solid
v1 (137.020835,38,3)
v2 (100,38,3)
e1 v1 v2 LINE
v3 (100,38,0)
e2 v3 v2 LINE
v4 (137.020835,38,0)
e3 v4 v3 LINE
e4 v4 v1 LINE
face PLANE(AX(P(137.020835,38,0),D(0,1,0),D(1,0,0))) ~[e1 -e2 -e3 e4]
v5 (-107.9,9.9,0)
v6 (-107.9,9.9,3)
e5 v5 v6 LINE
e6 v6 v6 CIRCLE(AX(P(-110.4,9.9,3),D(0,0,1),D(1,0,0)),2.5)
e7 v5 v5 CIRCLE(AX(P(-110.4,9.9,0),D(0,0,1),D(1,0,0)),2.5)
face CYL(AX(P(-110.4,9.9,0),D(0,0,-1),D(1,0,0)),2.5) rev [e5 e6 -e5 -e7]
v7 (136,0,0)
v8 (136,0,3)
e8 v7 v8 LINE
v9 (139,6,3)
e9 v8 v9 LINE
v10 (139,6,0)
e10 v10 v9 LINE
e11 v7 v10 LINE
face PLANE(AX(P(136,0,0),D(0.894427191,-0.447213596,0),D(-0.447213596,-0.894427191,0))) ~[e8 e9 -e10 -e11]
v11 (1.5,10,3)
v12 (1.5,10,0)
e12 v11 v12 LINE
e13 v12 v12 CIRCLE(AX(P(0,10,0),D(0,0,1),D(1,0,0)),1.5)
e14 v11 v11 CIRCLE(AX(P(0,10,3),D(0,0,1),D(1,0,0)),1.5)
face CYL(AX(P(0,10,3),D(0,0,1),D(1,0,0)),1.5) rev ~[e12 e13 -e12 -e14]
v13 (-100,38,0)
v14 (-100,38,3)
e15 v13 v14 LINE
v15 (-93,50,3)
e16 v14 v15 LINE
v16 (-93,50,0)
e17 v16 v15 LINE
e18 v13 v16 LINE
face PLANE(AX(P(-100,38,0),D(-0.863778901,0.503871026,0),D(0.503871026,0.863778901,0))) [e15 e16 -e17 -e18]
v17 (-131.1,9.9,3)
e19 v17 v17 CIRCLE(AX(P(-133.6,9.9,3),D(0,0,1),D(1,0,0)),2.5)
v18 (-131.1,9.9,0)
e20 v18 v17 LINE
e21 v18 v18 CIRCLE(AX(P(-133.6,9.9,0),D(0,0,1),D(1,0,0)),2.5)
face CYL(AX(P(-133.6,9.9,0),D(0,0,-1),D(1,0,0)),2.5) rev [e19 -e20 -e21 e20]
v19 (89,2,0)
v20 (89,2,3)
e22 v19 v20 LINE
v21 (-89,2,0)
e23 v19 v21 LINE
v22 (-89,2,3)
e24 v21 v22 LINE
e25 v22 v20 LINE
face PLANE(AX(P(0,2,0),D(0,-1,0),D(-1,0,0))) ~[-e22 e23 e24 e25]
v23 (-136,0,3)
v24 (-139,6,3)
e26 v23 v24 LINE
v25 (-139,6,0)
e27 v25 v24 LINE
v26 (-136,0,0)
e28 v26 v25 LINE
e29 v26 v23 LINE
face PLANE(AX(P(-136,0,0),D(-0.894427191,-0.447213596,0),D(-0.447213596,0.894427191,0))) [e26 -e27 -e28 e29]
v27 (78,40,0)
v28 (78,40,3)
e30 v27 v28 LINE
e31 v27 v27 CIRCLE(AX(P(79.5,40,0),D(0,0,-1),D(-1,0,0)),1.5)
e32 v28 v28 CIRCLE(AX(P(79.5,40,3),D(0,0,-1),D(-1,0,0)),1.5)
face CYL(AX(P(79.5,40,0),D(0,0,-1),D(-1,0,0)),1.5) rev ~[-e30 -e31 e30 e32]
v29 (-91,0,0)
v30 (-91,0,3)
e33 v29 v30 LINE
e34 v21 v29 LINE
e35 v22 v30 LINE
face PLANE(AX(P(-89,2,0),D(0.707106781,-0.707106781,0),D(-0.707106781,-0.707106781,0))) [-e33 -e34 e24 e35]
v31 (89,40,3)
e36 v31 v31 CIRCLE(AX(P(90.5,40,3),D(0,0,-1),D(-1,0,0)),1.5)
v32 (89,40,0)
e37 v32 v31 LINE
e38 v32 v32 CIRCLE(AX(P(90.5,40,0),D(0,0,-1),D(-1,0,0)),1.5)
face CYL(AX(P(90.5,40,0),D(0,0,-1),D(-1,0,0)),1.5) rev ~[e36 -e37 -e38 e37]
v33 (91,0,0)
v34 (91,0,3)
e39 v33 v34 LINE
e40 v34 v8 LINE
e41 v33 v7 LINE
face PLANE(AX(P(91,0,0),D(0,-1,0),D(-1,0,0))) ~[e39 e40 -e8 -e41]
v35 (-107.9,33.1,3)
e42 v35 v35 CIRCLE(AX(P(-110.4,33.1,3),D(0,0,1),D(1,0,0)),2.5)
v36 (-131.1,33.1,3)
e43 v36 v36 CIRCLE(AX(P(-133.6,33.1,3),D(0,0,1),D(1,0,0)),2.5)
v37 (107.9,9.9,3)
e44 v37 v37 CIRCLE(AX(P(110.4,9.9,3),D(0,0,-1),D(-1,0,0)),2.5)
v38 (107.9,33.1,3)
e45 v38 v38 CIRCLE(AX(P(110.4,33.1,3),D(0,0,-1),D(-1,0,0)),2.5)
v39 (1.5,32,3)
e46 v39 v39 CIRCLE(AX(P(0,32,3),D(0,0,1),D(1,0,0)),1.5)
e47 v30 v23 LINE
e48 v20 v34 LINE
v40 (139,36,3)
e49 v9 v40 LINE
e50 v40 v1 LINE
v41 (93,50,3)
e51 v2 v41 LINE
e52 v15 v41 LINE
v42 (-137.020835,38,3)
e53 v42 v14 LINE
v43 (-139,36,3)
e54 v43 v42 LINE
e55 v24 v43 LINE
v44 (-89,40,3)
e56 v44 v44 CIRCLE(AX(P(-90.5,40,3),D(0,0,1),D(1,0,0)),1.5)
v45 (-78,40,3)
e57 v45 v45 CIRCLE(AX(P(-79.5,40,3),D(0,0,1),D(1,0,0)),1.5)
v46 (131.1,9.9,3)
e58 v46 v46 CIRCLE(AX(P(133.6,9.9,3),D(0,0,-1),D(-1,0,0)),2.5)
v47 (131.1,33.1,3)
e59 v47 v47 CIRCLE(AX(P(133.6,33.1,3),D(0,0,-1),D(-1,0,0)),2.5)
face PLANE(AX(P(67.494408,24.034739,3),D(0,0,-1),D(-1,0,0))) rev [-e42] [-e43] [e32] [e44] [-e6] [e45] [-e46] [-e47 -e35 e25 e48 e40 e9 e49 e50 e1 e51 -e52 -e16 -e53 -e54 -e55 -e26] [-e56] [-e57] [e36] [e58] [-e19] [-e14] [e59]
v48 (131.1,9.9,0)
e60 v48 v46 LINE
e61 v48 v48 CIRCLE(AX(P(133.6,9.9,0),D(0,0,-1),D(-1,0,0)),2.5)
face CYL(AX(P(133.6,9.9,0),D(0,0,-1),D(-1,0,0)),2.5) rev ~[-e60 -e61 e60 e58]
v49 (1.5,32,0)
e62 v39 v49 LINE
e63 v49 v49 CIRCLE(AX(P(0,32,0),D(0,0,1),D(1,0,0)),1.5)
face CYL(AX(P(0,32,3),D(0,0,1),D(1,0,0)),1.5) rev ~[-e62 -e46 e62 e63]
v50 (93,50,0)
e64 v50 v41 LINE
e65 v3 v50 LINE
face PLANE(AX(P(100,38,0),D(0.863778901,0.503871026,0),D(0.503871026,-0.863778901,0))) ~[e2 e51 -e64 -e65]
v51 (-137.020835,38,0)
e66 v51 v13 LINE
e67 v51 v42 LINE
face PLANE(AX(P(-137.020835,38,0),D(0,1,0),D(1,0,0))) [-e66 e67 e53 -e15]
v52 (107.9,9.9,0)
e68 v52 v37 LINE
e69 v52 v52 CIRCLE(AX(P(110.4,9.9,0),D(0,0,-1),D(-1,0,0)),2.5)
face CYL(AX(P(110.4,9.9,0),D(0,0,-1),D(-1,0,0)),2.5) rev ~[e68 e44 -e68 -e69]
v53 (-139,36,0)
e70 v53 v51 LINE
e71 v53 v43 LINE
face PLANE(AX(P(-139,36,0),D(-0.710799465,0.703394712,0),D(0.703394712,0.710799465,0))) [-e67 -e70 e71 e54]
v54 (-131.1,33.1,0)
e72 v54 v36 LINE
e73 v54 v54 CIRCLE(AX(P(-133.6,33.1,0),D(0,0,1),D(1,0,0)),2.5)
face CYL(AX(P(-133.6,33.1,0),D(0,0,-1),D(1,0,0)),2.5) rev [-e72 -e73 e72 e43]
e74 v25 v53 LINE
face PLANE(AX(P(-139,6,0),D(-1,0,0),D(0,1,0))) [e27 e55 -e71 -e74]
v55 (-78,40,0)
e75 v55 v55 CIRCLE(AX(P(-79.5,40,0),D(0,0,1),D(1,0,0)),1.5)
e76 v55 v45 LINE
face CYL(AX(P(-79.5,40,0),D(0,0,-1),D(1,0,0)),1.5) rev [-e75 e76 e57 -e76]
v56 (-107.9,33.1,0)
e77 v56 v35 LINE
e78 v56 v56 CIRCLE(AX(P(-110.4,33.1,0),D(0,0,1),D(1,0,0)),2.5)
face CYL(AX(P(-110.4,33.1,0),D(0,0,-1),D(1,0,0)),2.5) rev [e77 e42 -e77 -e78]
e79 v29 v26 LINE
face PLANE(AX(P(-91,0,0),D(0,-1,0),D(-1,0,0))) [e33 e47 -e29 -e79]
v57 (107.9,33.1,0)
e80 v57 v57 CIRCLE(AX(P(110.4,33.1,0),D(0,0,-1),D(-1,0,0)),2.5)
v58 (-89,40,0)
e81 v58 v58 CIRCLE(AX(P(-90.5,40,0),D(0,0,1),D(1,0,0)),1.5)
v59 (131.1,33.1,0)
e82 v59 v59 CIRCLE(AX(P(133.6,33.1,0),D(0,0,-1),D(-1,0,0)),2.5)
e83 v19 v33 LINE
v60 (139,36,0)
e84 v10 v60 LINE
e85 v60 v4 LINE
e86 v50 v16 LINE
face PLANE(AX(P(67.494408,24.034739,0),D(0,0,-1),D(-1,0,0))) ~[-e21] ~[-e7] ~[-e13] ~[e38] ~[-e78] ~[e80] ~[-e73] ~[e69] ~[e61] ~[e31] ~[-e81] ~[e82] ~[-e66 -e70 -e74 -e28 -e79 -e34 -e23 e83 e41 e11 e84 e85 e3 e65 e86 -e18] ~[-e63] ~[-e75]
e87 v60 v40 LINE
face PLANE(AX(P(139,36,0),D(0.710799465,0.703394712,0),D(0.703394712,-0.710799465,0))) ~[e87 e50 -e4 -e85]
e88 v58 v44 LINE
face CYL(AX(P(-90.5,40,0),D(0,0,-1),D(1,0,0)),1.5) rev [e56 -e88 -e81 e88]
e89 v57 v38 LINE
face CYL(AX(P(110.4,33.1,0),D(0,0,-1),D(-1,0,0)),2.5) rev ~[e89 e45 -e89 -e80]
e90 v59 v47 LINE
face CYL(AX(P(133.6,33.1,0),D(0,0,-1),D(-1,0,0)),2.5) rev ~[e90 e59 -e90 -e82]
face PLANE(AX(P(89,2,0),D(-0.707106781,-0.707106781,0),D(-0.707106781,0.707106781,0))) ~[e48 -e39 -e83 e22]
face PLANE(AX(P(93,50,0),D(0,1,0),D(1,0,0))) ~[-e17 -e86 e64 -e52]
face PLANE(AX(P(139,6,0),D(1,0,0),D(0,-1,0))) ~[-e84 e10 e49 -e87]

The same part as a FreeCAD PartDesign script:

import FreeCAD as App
import Part
import Sketcher
Q = App.Units.Quantity

doc = App.newDocument("Part")
body = doc.addObject("PartDesign::Body", "Body")

# Sketch on XY plane
sketch1 = body.newObject("Sketcher::SketchObject", "Sketch")
sketch1.AttachmentSupport = (doc.getObject("XY_Plane"), [""])
sketch1.MapMode = "FlatFace"
sketch1.addGeometry(Part.LineSegment(App.Vector(0, 2, 0), App.Vector(0, 50, 0)), False)
sketch1.addGeometry(Part.LineSegment(App.Vector(0, 50, 0), App.Vector(-93, 50, 0)), False)
sketch1.addGeometry(Part.LineSegment(App.Vector(-93, 50, 0), App.Vector(-100, 38, 0)), False)
sketch1.addGeometry(Part.LineSegment(App.Vector(-100, 38, 0), App.Vector(-137.020835, 38, 0)), False)
sketch1.addGeometry(Part.LineSegment(App.Vector(-137.020835, 38, 0), App.Vector(-139, 36, 0)), False)
sketch1.addGeometry(Part.LineSegment(App.Vector(-139, 36, 0), App.Vector(-139, 6, 0)), False)
sketch1.addGeometry(Part.LineSegment(App.Vector(-139, 6, 0), App.Vector(-136, 0, 0)), False)
sketch1.addGeometry(Part.LineSegment(App.Vector(-136, 0, 0), App.Vector(-91, 0, 0)), False)
sketch1.addGeometry(Part.LineSegment(App.Vector(-91, 0, 0), App.Vector(-89, 2, 0)), False)
sketch1.addGeometry(Part.LineSegment(App.Vector(-89, 2, 0), App.Vector(0, 2, 0)), False)
sketch1.addGeometry(Part.Circle(App.Vector(-110.4, 9.9, 0), App.Vector(0, 0, 1), 2.5), False)
sketch1.addGeometry(Part.Circle(App.Vector(-133.6, 9.9, 0), App.Vector(0, 0, 1), 2.5), False)
sketch1.addGeometry(Part.Circle(App.Vector(-79.5, 40, 0), App.Vector(0, 0, 1), 1.5), False)
sketch1.addGeometry(Part.Circle(App.Vector(-90.5, 40, 0), App.Vector(0, 0, 1), 1.5), False)
sketch1.addGeometry(Part.Circle(App.Vector(-110.4, 33.1, 0), App.Vector(0, 0, 1), 2.5), False)
sketch1.addGeometry(Part.Circle(App.Vector(-133.6, 33.1, 0), App.Vector(0, 0, 1), 2.5), False)
sketch1.addConstraint(Sketcher.Constraint("Coincident", 0, 2, 1, 1))
sketch1.addConstraint(Sketcher.Constraint("Coincident", 1, 2, 2, 1))
sketch1.addConstraint(Sketcher.Constraint("Coincident", 2, 2, 3, 1))
sketch1.addConstraint(Sketcher.Constraint("Coincident", 3, 2, 4, 1))
sketch1.addConstraint(Sketcher.Constraint("Coincident", 4, 2, 5, 1))
sketch1.addConstraint(Sketcher.Constraint("Coincident", 5, 2, 6, 1))
sketch1.addConstraint(Sketcher.Constraint("Coincident", 6, 2, 7, 1))
sketch1.addConstraint(Sketcher.Constraint("Coincident", 7, 2, 8, 1))
sketch1.addConstraint(Sketcher.Constraint("Coincident", 8, 2, 9, 1))
sketch1.addConstraint(Sketcher.Constraint("Coincident", 9, 2, 0, 1))
sketch1.addConstraint(Sketcher.Constraint("Vertical", 0))
sketch1.addConstraint(Sketcher.Constraint("Horizontal", 1))
sketch1.addConstraint(Sketcher.Constraint("Horizontal", 3))
sketch1.addConstraint(Sketcher.Constraint("Vertical", 5))
sketch1.addConstraint(Sketcher.Constraint("Horizontal", 7))
sketch1.addConstraint(Sketcher.Constraint("Horizontal", 9))
sketch1.addConstraint(Sketcher.Constraint("Equal", 10, 11))
sketch1.addConstraint(Sketcher.Constraint("Equal", 12, 13))
sketch1.addConstraint(Sketcher.Constraint("Equal", 11, 14))
sketch1.addConstraint(Sketcher.Constraint("Equal", 14, 15))
sketch1.addConstraint(Sketcher.Constraint("PointOnObject", 0, 2, -2))
sketch1.addConstraint(Sketcher.Constraint("PointOnObject", 6, 2, -1))
sketch1.addConstraint(Sketcher.Constraint("Horizontal", 10, 3, 11, 3))
sketch1.addConstraint(Sketcher.Constraint("Horizontal", 12, 3, 13, 3))
sketch1.addConstraint(Sketcher.Constraint("Horizontal", 14, 3, 15, 3))
sketch1.addConstraint(Sketcher.Constraint("Vertical", 10, 3, 14, 3))
sketch1.addConstraint(Sketcher.Constraint("Vertical", 11, 3, 15, 3))
sketch1.addConstraint(Sketcher.Constraint("Diameter", 10, 5.0))
sketch1.addConstraint(Sketcher.Constraint("Diameter", 12, 3.0))
sketch1.addConstraint(Sketcher.Constraint("DistanceX", 1, 2, 1, 1, 93.0))
sketch1.addConstraint(Sketcher.Constraint("DistanceX", 7, 1, 7, 2, 45.0))
sketch1.addConstraint(Sketcher.Constraint("DistanceX", 9, 1, 9, 2, 89.0))
sketch1.addConstraint(Sketcher.Constraint("DistanceY", 0, 1, 0, 2, 48.0))
sketch1.addConstraint(Sketcher.Constraint("DistanceY", 5, 2, 5, 1, 30.0))
sketch1.addConstraint(Sketcher.Constraint("Angle", 8, Q("45 deg")))
sketch1.addConstraint(Sketcher.Constraint("DistanceY", -1, 1, 12, 3, 40.0))
sketch1.addConstraint(Sketcher.Constraint("DistanceY", -1, 1, 0, 2, 50.0))
sketch1.addConstraint(Sketcher.Constraint("DistanceX", 2, 2, -1, 1, 100.0))
sketch1.addConstraint(Sketcher.Constraint("DistanceY", -1, 1, 2, 2, 38.0))
sketch1.addConstraint(Sketcher.Constraint("DistanceX", 4, 2, -1, 1, 139.0))
sketch1.addConstraint(Sketcher.Constraint("DistanceY", -1, 1, 4, 2, 36.0))
sketch1.addConstraint(Sketcher.Constraint("Angle", 4, Q("-134.700001 deg")))
sketch1.addConstraint(Sketcher.Constraint("DistanceX", 13, 3, 12, 3, 11.0))
sketch1.addConstraint(Sketcher.Constraint("DistanceX", 10, 3, -1, 1, 110.4))
sketch1.addConstraint(Sketcher.Constraint("DistanceY", -1, 1, 10, 3, 9.9))
sketch1.addConstraint(Sketcher.Constraint("DistanceX", 11, 3, -1, 1, 133.6))
sketch1.addConstraint(Sketcher.Constraint("DistanceX", 12, 3, -1, 1, 79.5))
sketch1.addConstraint(Sketcher.Constraint("DistanceY", -1, 1, 14, 3, 33.1))
pad1 = body.newObject("PartDesign::Pad", "Pad")
pad1.Profile = sketch1
pad1.Length = 3
doc.recompute()

mirrored = body.newObject("PartDesign::Mirrored", "Mirrored")
mirrored.Originals = [pad1]
mirrored.MirrorPlane = (doc.getObject("YZ_Plane"), [""])
body.Tip = mirrored

# Sketch on XY plane
sketch2 = body.newObject("Sketcher::SketchObject", "Sketch001")
sketch2.AttachmentSupport = (doc.getObject("XY_Plane"), [""])
sketch2.MapMode = "FlatFace"
sketch2.AttachmentOffset = App.Placement(App.Vector(0, 0, 3), App.Rotation())
sketch2.addGeometry(Part.Circle(App.Vector(0, 32, 0), App.Vector(0, 0, 1), 1.5), False)
sketch2.addGeometry(Part.Circle(App.Vector(0, 10, 0), App.Vector(0, 0, 1), 1.5), False)
sketch2.addConstraint(Sketcher.Constraint("Equal", 0, 1))
sketch2.addConstraint(Sketcher.Constraint("PointOnObject", 0, 3, -2))
sketch2.addConstraint(Sketcher.Constraint("PointOnObject", 1, 3, -2))
sketch2.addConstraint(Sketcher.Constraint("Diameter", 0, 3.0))
sketch2.addConstraint(Sketcher.Constraint("DistanceY", -1, 1, 0, 3, 32.0))
sketch2.addConstraint(Sketcher.Constraint("DistanceY", -1, 1, 1, 3, 10.0))
pocket1 = body.newObject("PartDesign::Pocket", "Pocket")
pocket1.Profile = sketch2
pocket1.Type = "ThroughAll"

doc.recompute()
